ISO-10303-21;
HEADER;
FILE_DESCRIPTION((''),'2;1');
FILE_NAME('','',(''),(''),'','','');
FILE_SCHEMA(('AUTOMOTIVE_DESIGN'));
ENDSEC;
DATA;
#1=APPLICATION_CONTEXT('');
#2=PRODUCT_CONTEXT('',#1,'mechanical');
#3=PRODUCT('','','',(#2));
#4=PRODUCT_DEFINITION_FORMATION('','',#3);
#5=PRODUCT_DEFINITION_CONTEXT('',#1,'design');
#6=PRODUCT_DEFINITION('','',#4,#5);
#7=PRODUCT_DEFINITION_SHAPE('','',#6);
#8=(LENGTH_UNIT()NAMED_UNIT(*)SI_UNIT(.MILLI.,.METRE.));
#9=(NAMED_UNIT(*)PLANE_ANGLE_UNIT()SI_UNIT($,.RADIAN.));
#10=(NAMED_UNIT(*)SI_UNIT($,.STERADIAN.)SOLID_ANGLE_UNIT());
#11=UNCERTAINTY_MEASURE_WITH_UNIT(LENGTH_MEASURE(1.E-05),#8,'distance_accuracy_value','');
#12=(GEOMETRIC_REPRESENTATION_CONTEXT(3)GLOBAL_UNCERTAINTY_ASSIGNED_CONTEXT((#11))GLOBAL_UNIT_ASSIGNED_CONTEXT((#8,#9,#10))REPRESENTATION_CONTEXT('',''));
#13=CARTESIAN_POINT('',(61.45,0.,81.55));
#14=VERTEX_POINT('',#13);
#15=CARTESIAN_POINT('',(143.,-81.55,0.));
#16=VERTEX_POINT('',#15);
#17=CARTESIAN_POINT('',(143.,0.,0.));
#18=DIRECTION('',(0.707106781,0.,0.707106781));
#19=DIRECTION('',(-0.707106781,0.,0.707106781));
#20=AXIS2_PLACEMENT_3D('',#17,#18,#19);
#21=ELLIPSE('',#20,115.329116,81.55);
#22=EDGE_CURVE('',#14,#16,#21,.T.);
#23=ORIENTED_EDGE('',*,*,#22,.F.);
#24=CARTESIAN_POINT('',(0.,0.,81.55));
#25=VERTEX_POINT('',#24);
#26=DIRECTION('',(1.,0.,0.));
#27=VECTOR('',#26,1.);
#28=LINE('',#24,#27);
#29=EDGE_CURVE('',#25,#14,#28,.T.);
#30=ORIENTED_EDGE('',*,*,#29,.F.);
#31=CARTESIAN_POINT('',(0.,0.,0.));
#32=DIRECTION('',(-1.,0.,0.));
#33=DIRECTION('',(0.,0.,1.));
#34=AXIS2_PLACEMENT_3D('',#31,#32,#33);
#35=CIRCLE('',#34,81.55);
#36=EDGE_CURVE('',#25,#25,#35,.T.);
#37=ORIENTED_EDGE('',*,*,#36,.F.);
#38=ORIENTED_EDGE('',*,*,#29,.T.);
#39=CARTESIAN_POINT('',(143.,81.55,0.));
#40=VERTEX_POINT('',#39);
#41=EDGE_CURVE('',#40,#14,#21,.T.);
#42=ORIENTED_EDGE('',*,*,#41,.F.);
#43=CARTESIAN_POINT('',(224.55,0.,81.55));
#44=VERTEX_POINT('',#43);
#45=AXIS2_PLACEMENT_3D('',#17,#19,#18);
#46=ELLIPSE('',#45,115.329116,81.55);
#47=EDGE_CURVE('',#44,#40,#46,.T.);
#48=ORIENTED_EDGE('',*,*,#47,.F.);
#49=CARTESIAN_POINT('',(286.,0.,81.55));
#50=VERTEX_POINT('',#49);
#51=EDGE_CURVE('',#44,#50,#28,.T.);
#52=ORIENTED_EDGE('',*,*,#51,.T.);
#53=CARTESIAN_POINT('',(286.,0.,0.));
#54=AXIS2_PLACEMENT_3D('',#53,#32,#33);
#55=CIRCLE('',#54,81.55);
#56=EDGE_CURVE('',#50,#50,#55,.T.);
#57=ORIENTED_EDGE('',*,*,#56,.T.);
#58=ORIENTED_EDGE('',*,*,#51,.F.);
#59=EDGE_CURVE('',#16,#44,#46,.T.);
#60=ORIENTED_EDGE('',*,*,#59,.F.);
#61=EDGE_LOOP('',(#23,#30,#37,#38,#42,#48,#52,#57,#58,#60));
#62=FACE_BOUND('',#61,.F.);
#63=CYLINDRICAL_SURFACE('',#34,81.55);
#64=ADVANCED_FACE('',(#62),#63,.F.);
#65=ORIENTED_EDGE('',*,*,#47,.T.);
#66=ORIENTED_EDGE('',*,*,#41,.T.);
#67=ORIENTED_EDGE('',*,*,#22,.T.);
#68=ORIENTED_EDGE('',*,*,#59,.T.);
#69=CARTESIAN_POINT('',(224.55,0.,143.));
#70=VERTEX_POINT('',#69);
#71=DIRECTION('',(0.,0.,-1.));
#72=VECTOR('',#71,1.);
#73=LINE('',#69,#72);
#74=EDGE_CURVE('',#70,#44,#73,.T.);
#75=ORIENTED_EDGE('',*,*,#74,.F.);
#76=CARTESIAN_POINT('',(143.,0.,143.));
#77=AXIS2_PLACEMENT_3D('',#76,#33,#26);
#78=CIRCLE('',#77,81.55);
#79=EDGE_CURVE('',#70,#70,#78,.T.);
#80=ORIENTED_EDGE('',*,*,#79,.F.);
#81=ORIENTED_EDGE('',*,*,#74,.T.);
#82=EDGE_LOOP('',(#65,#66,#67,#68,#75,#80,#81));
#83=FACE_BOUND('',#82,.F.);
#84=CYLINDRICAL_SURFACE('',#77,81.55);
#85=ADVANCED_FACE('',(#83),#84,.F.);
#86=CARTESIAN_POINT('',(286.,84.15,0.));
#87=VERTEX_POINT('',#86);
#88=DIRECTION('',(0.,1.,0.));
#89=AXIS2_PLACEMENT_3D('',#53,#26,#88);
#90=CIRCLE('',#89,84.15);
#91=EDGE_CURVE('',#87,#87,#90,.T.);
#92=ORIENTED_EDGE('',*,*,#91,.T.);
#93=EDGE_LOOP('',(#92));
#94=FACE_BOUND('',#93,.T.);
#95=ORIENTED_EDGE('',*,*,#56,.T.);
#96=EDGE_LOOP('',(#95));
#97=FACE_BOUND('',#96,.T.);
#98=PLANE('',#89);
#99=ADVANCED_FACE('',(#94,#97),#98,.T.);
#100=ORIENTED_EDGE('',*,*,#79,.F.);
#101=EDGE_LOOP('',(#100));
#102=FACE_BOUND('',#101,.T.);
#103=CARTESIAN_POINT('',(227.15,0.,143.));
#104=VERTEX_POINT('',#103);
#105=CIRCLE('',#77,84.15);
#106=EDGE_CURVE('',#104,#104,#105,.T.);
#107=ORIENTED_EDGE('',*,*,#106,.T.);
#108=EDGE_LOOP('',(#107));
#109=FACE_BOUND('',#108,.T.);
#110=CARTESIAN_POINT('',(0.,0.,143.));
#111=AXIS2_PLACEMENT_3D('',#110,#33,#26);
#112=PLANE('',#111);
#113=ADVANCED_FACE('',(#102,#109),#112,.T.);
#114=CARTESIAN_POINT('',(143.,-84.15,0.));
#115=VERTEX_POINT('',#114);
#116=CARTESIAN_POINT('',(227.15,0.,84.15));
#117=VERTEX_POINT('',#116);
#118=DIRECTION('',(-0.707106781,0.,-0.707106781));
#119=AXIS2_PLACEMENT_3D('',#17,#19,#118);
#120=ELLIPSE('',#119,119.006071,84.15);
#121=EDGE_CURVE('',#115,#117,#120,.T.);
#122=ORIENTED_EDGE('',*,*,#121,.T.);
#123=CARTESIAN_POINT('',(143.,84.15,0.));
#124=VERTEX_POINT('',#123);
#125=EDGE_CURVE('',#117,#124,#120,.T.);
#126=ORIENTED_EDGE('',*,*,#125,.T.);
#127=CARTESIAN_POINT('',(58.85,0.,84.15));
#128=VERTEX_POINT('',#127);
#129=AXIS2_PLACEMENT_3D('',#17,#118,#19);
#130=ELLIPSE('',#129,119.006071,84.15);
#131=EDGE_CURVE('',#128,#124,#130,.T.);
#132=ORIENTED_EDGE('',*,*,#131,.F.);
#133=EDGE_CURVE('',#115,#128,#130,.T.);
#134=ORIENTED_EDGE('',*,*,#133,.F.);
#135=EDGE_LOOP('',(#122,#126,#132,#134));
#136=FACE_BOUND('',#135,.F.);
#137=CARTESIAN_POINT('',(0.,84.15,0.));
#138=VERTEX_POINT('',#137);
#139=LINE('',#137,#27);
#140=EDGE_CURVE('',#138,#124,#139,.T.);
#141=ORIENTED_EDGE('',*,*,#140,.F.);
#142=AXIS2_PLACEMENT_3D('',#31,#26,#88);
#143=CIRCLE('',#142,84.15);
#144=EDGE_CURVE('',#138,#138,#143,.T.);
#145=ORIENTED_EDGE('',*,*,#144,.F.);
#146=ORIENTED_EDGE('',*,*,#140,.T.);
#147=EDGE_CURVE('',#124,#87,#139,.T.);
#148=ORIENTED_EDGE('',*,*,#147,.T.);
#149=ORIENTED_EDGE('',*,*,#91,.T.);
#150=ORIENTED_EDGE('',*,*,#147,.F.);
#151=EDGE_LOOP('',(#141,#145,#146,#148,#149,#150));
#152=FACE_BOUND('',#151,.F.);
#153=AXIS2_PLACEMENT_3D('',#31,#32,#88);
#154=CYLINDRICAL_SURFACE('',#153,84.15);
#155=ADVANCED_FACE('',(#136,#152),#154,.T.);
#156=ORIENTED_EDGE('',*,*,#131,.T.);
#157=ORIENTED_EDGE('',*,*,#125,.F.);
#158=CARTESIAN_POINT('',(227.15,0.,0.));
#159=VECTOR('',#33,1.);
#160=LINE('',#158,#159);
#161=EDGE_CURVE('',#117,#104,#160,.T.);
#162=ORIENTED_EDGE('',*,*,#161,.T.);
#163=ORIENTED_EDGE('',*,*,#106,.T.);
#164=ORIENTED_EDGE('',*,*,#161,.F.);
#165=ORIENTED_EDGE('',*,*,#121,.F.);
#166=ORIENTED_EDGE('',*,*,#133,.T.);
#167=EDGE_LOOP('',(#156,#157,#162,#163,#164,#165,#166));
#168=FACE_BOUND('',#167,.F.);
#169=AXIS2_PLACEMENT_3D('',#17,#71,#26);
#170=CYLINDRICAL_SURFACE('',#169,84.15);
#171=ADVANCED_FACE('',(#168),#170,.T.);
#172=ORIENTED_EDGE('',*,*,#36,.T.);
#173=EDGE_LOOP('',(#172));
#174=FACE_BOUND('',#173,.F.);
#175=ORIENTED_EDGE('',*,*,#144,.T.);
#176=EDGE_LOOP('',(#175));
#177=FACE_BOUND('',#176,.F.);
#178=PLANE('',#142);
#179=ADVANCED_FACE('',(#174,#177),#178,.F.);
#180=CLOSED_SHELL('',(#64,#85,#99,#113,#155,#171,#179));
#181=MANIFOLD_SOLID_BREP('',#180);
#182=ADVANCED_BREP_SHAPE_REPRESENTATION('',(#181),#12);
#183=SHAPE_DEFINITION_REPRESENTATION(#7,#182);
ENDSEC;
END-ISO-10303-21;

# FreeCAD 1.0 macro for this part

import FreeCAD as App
import Part
import Sketcher

V = App.Vector
Q = App.Units.Quantity

doc = App.newDocument("Part")
body = doc.addObject("PartDesign::Body", "Body")

sketch1 = body.newObject("Sketcher::SketchObject", "Sketch")
sketch1.AttachmentSupport = (doc.getObject("YZ_Plane"), [""])
sketch1.MapMode = "FlatFace"
sketch1.addGeometry(Part.Circle(V(0, 0, 0), V(0, 0, 1), 84.15), False)
sketch1.addConstraint([
    Sketcher.Constraint("Coincident", 0, 3, -1, 1),
    Sketcher.Constraint("Diameter", 0, Q("168.3 mm")),
])
pad1 = body.newObject("PartDesign::Pad", "Pad")
pad1.Profile = sketch1
pad1.Length = 286

sketch2 = body.newObject("Sketcher::SketchObject", "Sketch001")
sketch2.AttachmentSupport = (doc.getObject("XY_Plane"), [""])
sketch2.MapMode = "FlatFace"
sketch2.addGeometry(Part.Circle(V(143, 0, 0), V(0, 0, 1), 84.15), False)
sketch2.addConstraint([
    Sketcher.Constraint("PointOnObject", 0, 3, -1),
    Sketcher.Constraint("Diameter", 0, Q("168.3 mm")),
    Sketcher.Constraint("DistanceX", -1, 1, 0, 3, Q("143 mm")),
])
pad2 = body.newObject("PartDesign::Pad", "Pad001")
pad2.Profile = sketch2
pad2.Length = 143

sketch3 = body.newObject("Sketcher::SketchObject", "Sketch002")
sketch3.AttachmentSupport = (doc.getObject("YZ_Plane"), [""])
sketch3.MapMode = "FlatFace"
sketch3.addGeometry(Part.Circle(V(0, 0, 0), V(0, 0, 1), 81.55), False)
sketch3.addConstraint([
    Sketcher.Constraint("Coincident", 0, 3, -1, 1),
    Sketcher.Constraint("Diameter", 0, Q("163.1 mm")),
])
pocket1 = body.newObject("PartDesign::Pocket", "Pocket")
pocket1.Profile = sketch3
pocket1.Type = "ThroughAll"
pocket1.Reversed = True

sketch4 = body.newObject("Sketcher::SketchObject", "Sketch003")
sketch4.AttachmentSupport = (doc.getObject("XY_Plane"), [""])
sketch4.MapMode = "FlatFace"
sketch4.AttachmentOffset = App.Placement(V(0, 0, 143), App.Rotation())
sketch4.addGeometry(Part.Circle(V(143, 0, 0), V(0, 0, 1), 81.55), False)
sketch4.addConstraint([
    Sketcher.Constraint("PointOnObject", 0, 3, -1),
    Sketcher.Constraint("Diameter", 0, Q("163.1 mm")),
    Sketcher.Constraint("DistanceX", -1, 1, 0, 3, Q("143 mm")),
])
pocket2 = body.newObject("PartDesign::Pocket", "Pocket001")
pocket2.Profile = sketch4
pocket2.Type = "UpToFirst"

doc.recompute()
